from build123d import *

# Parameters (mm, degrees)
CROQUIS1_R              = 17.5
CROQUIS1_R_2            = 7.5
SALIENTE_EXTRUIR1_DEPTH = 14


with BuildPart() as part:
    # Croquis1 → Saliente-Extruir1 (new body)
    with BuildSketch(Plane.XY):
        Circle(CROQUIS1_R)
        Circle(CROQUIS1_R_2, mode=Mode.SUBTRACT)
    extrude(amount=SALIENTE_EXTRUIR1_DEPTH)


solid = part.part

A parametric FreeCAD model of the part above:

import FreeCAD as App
import Part
import Sketcher

doc = App.newDocument("Part")
params = doc.addObject("Spreadsheet::Sheet", "Params")
for row, (alias, value) in enumerate([
    ("sketch1_diameter", "35 mm"),
    ("sketch1_diameter2", "15 mm"),
    ("pad1_length", "14 mm"),
], start=1):
    params.set(f"A{row}", alias)
    params.set(f"B{row}", "=" + value)
    params.setAlias(f"B{row}", alias)

body = doc.addObject("PartDesign::Body", "Body")

# Sketch on XY plane
sketch1 = body.newObject("Sketcher::SketchObject", "Sketch")
sketch1.AttachmentSupport = (doc.getObject("XY_Plane"), [""])
sketch1.MapMode = "FlatFace"
sketch1.addGeometry(Part.Circle(App.Vector(0, 0, 0), App.Vector(0, 0, 1), 18), False)
sketch1.addGeometry(Part.Circle(App.Vector(0, 0, 0), App.Vector(0, 0, 1), 8), False)
sketch1.addConstraint(Sketcher.Constraint("Coincident", 0, 3, -1, 1))
sketch1.addConstraint(Sketcher.Constraint("Coincident", 1, 3, -1, 1))
sketch1.addConstraint(Sketcher.Constraint("Diameter", 0, 35.0))
sketch1.addConstraint(Sketcher.Constraint("Diameter", 1, 15.0))
sketch1.setExpression("Constraints[2]", "Params.sketch1_diameter")
sketch1.setExpression("Constraints[3]", "Params.sketch1_diameter2")
pad1 = body.newObject("PartDesign::Pad", "Pad")
pad1.Profile = sketch1
pad1.setExpression("Length", "Params.pad1_length")

doc.recompute()
